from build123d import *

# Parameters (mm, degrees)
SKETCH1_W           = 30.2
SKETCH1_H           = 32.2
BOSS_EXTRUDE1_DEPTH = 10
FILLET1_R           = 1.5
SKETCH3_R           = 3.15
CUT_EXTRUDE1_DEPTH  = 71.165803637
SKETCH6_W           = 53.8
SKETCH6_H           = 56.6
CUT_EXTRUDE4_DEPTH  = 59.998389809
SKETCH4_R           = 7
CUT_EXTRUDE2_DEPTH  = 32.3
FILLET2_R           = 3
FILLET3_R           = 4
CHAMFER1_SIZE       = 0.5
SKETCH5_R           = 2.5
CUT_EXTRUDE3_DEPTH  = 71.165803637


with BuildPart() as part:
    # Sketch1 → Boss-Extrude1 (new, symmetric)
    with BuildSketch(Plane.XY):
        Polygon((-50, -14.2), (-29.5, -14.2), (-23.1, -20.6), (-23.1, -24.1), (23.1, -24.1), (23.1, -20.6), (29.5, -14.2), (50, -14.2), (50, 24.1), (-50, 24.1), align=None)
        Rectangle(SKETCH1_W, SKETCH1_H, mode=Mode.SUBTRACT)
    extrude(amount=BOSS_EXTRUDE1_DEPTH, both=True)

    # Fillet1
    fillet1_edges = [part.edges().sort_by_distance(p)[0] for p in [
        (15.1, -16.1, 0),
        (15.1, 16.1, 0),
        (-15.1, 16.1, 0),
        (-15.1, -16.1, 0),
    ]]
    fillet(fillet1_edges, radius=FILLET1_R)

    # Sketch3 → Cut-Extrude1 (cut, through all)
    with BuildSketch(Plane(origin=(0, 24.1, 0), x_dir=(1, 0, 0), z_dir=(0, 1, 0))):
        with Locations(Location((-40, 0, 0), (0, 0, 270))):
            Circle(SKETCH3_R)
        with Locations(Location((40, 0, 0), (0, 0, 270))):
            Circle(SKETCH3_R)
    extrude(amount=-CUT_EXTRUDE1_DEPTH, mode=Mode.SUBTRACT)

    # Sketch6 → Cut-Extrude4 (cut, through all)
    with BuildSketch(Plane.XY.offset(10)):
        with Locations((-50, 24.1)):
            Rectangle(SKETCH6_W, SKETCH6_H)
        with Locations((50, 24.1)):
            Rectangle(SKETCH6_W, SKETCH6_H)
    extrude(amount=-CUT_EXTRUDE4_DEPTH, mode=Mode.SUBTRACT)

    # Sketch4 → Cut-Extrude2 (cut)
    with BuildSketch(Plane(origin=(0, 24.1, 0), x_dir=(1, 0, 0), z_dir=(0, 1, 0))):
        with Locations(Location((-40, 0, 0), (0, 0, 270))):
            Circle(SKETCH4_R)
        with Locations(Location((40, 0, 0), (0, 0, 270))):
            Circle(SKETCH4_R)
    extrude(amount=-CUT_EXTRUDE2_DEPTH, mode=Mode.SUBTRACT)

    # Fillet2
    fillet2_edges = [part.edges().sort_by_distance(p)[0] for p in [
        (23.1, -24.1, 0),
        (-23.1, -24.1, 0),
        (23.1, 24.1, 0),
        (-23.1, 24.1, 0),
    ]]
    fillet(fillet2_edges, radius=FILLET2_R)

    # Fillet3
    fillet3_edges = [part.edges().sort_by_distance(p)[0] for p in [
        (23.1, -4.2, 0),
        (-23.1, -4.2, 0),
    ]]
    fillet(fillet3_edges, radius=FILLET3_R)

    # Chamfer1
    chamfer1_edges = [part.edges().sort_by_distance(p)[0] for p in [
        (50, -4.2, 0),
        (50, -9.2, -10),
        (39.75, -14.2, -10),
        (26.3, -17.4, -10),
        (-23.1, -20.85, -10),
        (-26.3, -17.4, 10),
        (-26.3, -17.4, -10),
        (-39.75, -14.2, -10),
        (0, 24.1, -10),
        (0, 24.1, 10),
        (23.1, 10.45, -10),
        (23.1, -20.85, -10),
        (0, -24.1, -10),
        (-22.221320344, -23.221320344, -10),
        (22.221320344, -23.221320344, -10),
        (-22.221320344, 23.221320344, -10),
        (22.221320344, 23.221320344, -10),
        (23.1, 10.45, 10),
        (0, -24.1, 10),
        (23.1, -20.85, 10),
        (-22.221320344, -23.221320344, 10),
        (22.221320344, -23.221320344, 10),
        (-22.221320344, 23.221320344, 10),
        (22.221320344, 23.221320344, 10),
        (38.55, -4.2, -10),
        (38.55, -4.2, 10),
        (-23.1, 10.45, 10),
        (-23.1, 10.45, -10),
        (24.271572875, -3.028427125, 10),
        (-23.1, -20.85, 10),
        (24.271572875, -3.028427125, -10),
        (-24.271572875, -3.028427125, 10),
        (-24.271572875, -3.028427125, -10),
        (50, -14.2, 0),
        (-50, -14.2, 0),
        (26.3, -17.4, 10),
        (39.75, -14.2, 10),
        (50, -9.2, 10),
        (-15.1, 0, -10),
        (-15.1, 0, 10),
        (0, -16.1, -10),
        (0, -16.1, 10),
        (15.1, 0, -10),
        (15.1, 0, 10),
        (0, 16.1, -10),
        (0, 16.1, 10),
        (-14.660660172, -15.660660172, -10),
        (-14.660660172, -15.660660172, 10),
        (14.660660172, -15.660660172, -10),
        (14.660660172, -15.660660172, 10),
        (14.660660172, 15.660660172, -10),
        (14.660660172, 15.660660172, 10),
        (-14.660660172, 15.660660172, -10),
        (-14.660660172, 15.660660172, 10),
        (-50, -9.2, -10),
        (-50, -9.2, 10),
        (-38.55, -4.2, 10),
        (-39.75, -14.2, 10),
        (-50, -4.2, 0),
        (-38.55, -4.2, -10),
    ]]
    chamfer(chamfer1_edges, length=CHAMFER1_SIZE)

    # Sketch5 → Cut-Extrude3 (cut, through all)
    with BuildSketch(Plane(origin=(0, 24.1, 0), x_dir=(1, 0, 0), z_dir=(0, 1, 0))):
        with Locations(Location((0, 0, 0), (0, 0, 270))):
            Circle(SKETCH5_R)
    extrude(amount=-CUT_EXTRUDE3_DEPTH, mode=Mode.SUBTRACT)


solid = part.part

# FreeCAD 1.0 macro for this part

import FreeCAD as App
import Part
import Sketcher

V = App.Vector
Q = App.Units.Quantity


def edges_at(feature, points):
    """Names of the edges that pass closest to the given points."""
    edges = feature.Shape.Edges
    near = lambda p: min(range(len(edges)), key=lambda i: edges[i].distToShape(Part.Vertex(*p))[0])
    return sorted({f"Edge{near(p) + 1}" for p in points})


def add_polygon(sketch, points):
    """Adds a closed chain of lines whose ends are joined by coincident constraints."""
    first, n = sketch.GeometryCount, len(points)
    for a, b in zip(points, points[1:] + points[:1]):
        sketch.addGeometry(Part.LineSegment(App.Vector(*a, 0), App.Vector(*b, 0)), False)
    for i in range(n):
        sketch.addConstraint(Sketcher.Constraint("Coincident", first + i, 2, first + (i + 1) % n, 1))

doc = App.newDocument("Part")
body = doc.addObject("PartDesign::Body", "Body")

# Sketch on XY plane
sketch1 = body.newObject("Sketcher::SketchObject", "Sketch")
sketch1.AttachmentSupport = (doc.getObject("XY_Plane"), [""])
sketch1.MapMode = "FlatFace"
add_polygon(sketch1, [(-50, -14.2), (-29.5, -14.2), (-23.1, -20.6), (-23.1, -24.1), (23.1, -24.1), (23.1, -20.6), (29.5, -14.2), (50, -14.2), (50, 24.1), (-50, 24.1)])  # lines 0-9
add_polygon(sketch1, [(15.1, -16.1), (-15.1, -16.1), (-15.1, 16.1), (15.1, 16.1)])  # lines 10-13
sketch1.addConstraint([
    Sketcher.Constraint("Horizontal", 0),
    Sketcher.Constraint("Vertical", 2),
    Sketcher.Constraint("Horizontal", 3),
    Sketcher.Constraint("Vertical", 4),
    Sketcher.Constraint("Horizontal", 6),
    Sketcher.Constraint("Vertical", 7),
    Sketcher.Constraint("Horizontal", 8),
    Sketcher.Constraint("Vertical", 9),
    Sketcher.Constraint("Horizontal", 10),
    Sketcher.Constraint("Vertical", 11),
    Sketcher.Constraint("Horizontal", 12),
    Sketcher.Constraint("Vertical", 13),
    Sketcher.Constraint("Symmetric", 10, 2, 12, 2, -1, 1),
    Sketcher.Constraint("Symmetric", 1, 2, 4, 2, -2),
    Sketcher.Constraint("Symmetric", 0, 2, 5, 2, -2),
    Sketcher.Constraint("Perpendicular", 1, 5),
    Sketcher.Constraint("Equal", 0, 6),
    Sketcher.Constraint("DistanceX", 8, 2, 8, 1, Q("100 mm")),
    Sketcher.Constraint("DistanceX", 0, 1, 0, 2, Q("20.5 mm")),
    Sketcher.Constraint("DistanceX", 3, 1, 3, 2, Q("46.2 mm")),
    Sketcher.Constraint("DistanceX", 10, 2, 10, 1, Q("30.2 mm")),
    Sketcher.Constraint("DistanceY", 2, 2, 2, 1, Q("3.5 mm")),
    Sketcher.Constraint("DistanceY", 7, 1, 7, 2, Q("38.3 mm")),
    Sketcher.Constraint("DistanceY", 11, 1, 11, 2, Q("32.2 mm")),
    Sketcher.Constraint("DistanceY", 2, 2, 10, 2, Q("8 mm")),
])
pad1 = body.newObject("PartDesign::Pad", "Pad")
pad1.Profile = sketch1
pad1.Length = 20
pad1.Midplane = True
doc.recompute()

fillet = body.newObject("PartDesign::Fillet", "Fillet")
fillet.Base = (pad1, edges_at(pad1, [
    (15.1, -16.1, 0),
    (15.1, 16.1, 0),
    (-15.1, 16.1, 0),
    (-15.1, -16.1, 0),
]))
fillet.Radius = 1.5

# Sketch on XZ plane
sketch2 = body.newObject("Sketcher::SketchObject", "Sketch001")
sketch2.AttachmentSupport = (doc.getObject("XZ_Plane"), [""])
sketch2.MapMode = "FlatFace"
sketch2.AttachmentOffset = App.Placement(V(0, 0, -24.1), App.Rotation())
sketch2.addGeometry([
    Part.Circle(V(-40, 0, 0), V(0, 0, 1), 3.1),
    Part.Circle(V(40, 0, 0), V(0, 0, 1), 3.1),
], False)
sketch2.addConstraint([
    Sketcher.Constraint("Equal", 0, 1),
    Sketcher.Constraint("Symmetric", 0, 3, 1, 3, -1, 1),
    Sketcher.Constraint("PointOnObject", 0, 3, -1),
    Sketcher.Constraint("Diameter", 0, Q("6.3 mm")),
    Sketcher.Constraint("DistanceX", 0, 3, -1, 1, Q("40 mm")),
])
pocket1 = body.newObject("PartDesign::Pocket", "Pocket")
pocket1.Profile = sketch2
pocket1.Type = "ThroughAll"
pocket1.Reversed = True

# Sketch on XY plane
sketch3 = body.newObject("Sketcher::SketchObject", "Sketch002")
sketch3.AttachmentSupport = (doc.getObject("XY_Plane"), [""])
sketch3.MapMode = "FlatFace"
sketch3.AttachmentOffset = App.Placement(V(0, 0, 10), App.Rotation())
add_polygon(sketch3, [(-77, 52), (-77, -4), (-23, -4), (-23, 52)])  # lines 0-3
add_polygon(sketch3, [(23, 52), (23, -4), (77, -4), (77, 52)])  # lines 4-7
sketch3.addConstraint([
    Sketcher.Constraint("Vertical", 0),
    Sketcher.Constraint("Horizontal", 1),
    Sketcher.Constraint("Vertical", 2),
    Sketcher.Constraint("Horizontal", 3),
    Sketcher.Constraint("Vertical", 4),
    Sketcher.Constraint("Horizontal", 5),
    Sketcher.Constraint("Vertical", 6),
    Sketcher.Constraint("Horizontal", 7),
    Sketcher.Constraint("Symmetric", 1, 2, 4, 2, -2),
    Sketcher.Constraint("Symmetric", 3, 2, 6, 2, -2),
    Sketcher.Constraint("DistanceX", 1, 1, 1, 2, Q("53.8 mm")),
    Sketcher.Constraint("DistanceY", 0, 2, 0, 1, Q("56.6 mm")),
    Sketcher.Constraint("DistanceX", 0, 2, 4, 2, Q("100 mm")),
    Sketcher.Constraint("DistanceY", 0, 2, -1, 1, Q("4.2 mm")),
])
pocket2 = body.newObject("PartDesign::Pocket", "Pocket001")
pocket2.Profile = sketch3
pocket2.Type = "ThroughAll"

# Sketch on XZ plane
sketch4 = body.newObject("Sketcher::SketchObject", "Sketch003")
sketch4.AttachmentSupport = (doc.getObject("XZ_Plane"), [""])
sketch4.MapMode = "FlatFace"
sketch4.AttachmentOffset = App.Placement(V(0, 0, -24.1), App.Rotation())
sketch4.addGeometry([
    Part.Circle(V(-40, 0, 0), V(0, 0, 1), 7),
    Part.Circle(V(40, 0, 0), V(0, 0, 1), 7),
], False)
sketch4.addConstraint([
    Sketcher.Constraint("Equal", 0, 1),
    Sketcher.Constraint("Symmetric", 0, 3, 1, 3, -1, 1),
    Sketcher.Constraint("PointOnObject", 0, 3, -1),
    Sketcher.Constraint("Diameter", 0, Q("14 mm")),
    Sketcher.Constraint("DistanceX", 0, 3, -1, 1, Q("40 mm")),
])
pocket3 = body.newObject("PartDesign::Pocket", "Pocket002")
pocket3.Profile = sketch4
pocket3.Length = 32.3
pocket3.Reversed = True
doc.recompute()

fillet2 = body.newObject("PartDesign::Fillet", "Fillet001")
fillet2.Base = (pocket3, edges_at(pocket3, [
    (23.1, -24.1, 0),
    (-23.1, -24.1, 0),
    (23.1, 24.1, 0),
    (-23.1, 24.1, 0),
]))
fillet2.Radius = 3
doc.recompute()

fillet3 = body.newObject("PartDesign::Fillet", "Fillet002")
fillet3.Base = (fillet2, edges_at(fillet2, [(23.1, -4.2, 0), (-23.1, -4.2, 0)]))
fillet3.Radius = 4
doc.recompute()

chamfer = body.newObject("PartDesign::Chamfer", "Chamfer")
chamfer.Base = (fillet3, edges_at(fillet3, [
    (50, -4.2, 0),
    (50, -9.2, -10),
    (39.75, -14.2, -10),
    (26.3, -17.4, -10),
    (-23.1, -20.85, -10),
    (-26.3, -17.4, 10),
    (-26.3, -17.4, -10),
    (-39.75, -14.2, -10),
    (0, 24.1, -10),
    (0, 24.1, 10),
    (23.1, 10.45, -10),
    (23.1, -20.85, -10),
    (0, -24.1, -10),
    (-22.221, -23.221, -10),
    (22.221, -23.221, -10),
    (-22.221, 23.221, -10),
    (22.221, 23.221, -10),
    (23.1, 10.45, 10),
    (0, -24.1, 10),
    (23.1, -20.85, 10),
    (-22.221, -23.221, 10),
    (22.221, -23.221, 10),
    (-22.221, 23.221, 10),
    (22.221, 23.221, 10),
    (38.55, -4.2, -10),
    (38.55, -4.2, 10),
    (-23.1, 10.45, 10),
    (-23.1, 10.45, -10),
    (24.272, -3.028, 10),
    (-23.1, -20.85, 10),
    (24.272, -3.028, -10),
    (-24.272, -3.028, 10),
    (-24.272, -3.028, -10),
    (50, -14.2, 0),
    (-50, -14.2, 0),
    (26.3, -17.4, 10),
    (39.75, -14.2, 10),
    (50, -9.2, 10),
    (-15.1, 0, -10),
    (-15.1, 0, 10),
    (0, -16.1, -10),
    (0, -16.1, 10),
    (15.1, 0, -10),
    (15.1, 0, 10),
    (0, 16.1, -10),
    (0, 16.1, 10),
    (-14.661, -15.661, -10),
    (-14.661, -15.661, 10),
    (14.661, -15.661, -10),
    (14.661, -15.661, 10),
    (14.661, 15.661, -10),
    (14.661, 15.661, 10),
    (-14.661, 15.661, -10),
    (-14.661, 15.661, 10),
    (-50, -9.2, -10),
    (-50, -9.2, 10),
    (-38.55, -4.2, 10),
    (-39.75, -14.2, 10),
    (-50, -4.2, 0),
    (-38.55, -4.2, -10),
]))
chamfer.Size = 0.5

# Sketch on XZ plane
sketch5 = body.newObject("Sketcher::SketchObject", "Sketch004")
sketch5.AttachmentSupport = (doc.getObject("XZ_Plane"), [""])
sketch5.MapMode = "FlatFace"
sketch5.AttachmentOffset = App.Placement(V(0, 0, -24.1), App.Rotation())
sketch5.addGeometry(Part.Circle(V(0, 0, 0), V(0, 0, 1), 2.5), False)
sketch5.addConstraint([
    Sketcher.Constraint("Coincident", 0, 3, -1, 1),
    Sketcher.Constraint("Diameter", 0, Q("5 mm")),
])
pocket4 = body.newObject("PartDesign::Pocket", "Pocket003")
pocket4.Profile = sketch5
pocket4.Type = "ThroughAll"
pocket4.Reversed = True

doc.recompute()
